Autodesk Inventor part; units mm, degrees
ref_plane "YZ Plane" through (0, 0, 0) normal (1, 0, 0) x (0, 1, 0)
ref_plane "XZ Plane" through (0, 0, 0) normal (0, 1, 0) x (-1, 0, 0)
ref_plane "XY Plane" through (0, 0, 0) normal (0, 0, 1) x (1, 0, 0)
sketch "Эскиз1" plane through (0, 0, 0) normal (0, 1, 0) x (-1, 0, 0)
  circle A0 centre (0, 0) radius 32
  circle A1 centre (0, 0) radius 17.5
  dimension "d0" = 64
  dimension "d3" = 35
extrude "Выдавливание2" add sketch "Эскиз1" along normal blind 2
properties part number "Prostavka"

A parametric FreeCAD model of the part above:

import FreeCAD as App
import Part
import Sketcher
Q = App.Units.Quantity

doc = App.newDocument("Part")
body = doc.addObject("PartDesign::Body", "Body")

# Sketch on XZ plane
sketch1 = doc.addObject("Sketcher::SketchObject", "Sketch")
body.addObject(sketch1)
sketch1.AttachmentSupport = (doc.XZ_Plane, [""])
sketch1.MapMode = "FlatFace"
sketch1.addGeometry(Part.Circle(App.Vector(0, 0, 0), App.Vector(0, 0, 1), 32), False)
sketch1.addGeometry(Part.Circle(App.Vector(0, 0, 0), App.Vector(0, 0, 1), 17.5), False)
sketch1.addConstraint(Sketcher.Constraint("Coincident", 0, 3, -1, 1))
sketch1.addConstraint(Sketcher.Constraint("Coincident", 1, 3, -1, 1))
sketch1.addConstraint(Sketcher.Constraint("Diameter", 0, Q("64 mm")))
sketch1.addConstraint(Sketcher.Constraint("Diameter", 1, Q("35 mm")))
pad1 = doc.addObject("PartDesign::Pad", "Pad")
body.addObject(pad1)
pad1.Profile = sketch1
pad1.Length = 2
pad1.Reversed = True

doc.recompute()
